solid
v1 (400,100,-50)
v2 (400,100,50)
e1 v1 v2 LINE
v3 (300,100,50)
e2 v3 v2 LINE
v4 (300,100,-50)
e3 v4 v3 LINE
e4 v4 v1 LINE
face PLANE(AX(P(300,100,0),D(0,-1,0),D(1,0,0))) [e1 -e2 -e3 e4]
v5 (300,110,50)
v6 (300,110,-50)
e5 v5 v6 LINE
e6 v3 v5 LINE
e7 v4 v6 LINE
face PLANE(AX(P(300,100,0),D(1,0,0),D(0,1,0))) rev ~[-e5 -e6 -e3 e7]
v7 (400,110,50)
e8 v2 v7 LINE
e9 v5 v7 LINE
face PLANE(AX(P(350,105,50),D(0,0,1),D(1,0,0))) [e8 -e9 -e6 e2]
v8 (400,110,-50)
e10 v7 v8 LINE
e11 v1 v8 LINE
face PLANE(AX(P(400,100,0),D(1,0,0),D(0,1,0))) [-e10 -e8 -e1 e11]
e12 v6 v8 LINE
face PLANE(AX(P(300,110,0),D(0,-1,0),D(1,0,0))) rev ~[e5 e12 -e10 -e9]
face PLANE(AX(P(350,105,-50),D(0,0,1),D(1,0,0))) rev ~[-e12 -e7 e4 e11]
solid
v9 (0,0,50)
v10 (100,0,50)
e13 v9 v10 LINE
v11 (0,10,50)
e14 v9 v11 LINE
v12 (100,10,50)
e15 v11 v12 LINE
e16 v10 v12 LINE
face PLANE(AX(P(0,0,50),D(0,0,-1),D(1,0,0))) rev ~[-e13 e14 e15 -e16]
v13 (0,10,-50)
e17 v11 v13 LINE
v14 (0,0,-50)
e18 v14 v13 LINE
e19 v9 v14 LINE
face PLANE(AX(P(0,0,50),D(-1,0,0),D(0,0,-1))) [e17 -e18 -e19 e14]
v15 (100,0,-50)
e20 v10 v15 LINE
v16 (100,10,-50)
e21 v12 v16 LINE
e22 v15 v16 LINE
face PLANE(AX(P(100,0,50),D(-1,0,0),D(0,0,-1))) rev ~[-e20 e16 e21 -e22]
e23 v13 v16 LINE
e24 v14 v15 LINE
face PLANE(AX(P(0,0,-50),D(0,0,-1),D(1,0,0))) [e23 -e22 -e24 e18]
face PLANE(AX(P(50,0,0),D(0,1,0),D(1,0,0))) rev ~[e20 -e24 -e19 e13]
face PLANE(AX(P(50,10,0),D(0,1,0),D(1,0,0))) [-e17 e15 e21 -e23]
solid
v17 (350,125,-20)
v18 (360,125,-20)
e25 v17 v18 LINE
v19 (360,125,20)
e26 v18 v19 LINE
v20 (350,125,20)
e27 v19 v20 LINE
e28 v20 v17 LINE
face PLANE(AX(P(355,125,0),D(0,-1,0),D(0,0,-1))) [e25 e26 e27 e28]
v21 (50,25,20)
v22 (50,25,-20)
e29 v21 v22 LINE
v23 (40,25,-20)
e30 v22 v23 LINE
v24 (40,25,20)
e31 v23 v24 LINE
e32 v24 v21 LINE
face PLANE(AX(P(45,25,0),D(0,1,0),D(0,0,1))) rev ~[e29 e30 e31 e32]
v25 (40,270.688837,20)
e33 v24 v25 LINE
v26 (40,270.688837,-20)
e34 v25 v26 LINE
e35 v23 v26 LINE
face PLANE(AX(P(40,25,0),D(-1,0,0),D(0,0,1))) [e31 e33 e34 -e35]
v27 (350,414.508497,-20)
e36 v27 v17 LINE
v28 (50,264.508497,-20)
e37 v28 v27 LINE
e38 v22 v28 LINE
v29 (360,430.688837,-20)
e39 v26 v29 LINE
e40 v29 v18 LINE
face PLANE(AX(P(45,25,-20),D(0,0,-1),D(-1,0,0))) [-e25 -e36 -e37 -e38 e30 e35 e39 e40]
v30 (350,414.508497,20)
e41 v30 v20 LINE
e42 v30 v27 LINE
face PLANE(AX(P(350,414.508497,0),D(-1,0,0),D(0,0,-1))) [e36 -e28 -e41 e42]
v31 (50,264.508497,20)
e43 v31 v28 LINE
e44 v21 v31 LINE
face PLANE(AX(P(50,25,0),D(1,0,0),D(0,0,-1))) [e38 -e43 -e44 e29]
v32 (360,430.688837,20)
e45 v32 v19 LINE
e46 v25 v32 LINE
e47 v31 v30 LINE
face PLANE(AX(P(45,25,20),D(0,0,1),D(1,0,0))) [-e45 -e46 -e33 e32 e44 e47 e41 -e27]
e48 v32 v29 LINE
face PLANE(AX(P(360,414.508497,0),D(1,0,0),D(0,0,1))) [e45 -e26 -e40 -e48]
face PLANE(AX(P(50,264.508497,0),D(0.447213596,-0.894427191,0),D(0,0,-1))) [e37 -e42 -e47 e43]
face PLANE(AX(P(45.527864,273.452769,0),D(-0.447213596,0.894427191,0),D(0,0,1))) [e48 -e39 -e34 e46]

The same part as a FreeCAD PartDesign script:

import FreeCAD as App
import Part
import Sketcher

doc = App.newDocument("Part")
body = doc.addObject("PartDesign::Body", "Body")

# Sketch on XZ plane
sketch1 = doc.addObject("Sketcher::SketchObject", "Sketch")
body.addObject(sketch1)
sketch1.AttachmentSupport = (doc.XZ_Plane, [""])
sketch1.MapMode = "FlatFace"
sketch1.addGeometry([
    Part.LineSegment(App.Vector(0, -50, 0), App.Vector(0, 50, 0)),
    Part.LineSegment(App.Vector(0, 50, 0), App.Vector(100, 50, 0)),
    Part.LineSegment(App.Vector(100, 50, 0), App.Vector(100, -50, 0)),
    Part.LineSegment(App.Vector(100, -50, 0), App.Vector(0, -50, 0)),
], False)
sketch1.addConstraint([
    Sketcher.Constraint("Coincident", 0, 2, 1, 1),
    Sketcher.Constraint("Coincident", 1, 2, 2, 1),
    Sketcher.Constraint("Coincident", 2, 2, 3, 1),
    Sketcher.Constraint("Coincident", 3, 2, 0, 1),
    Sketcher.Constraint("Vertical", 0),
    Sketcher.Constraint("Horizontal", 1),
    Sketcher.Constraint("Vertical", 2),
    Sketcher.Constraint("Horizontal", 3),
    Sketcher.Constraint("Symmetric", 0, 2, 3, 2, -1, 1),
    Sketcher.Constraint("Equal", 3, 0),
    Sketcher.Constraint("DistanceX", 1, 1, 1, 2, 100.0),
])
pad1 = doc.addObject("PartDesign::Pad", "Pad")
body.addObject(pad1)
pad1.Profile = sketch1
pad1.Length = 10
pad1.Reversed = True
body2 = doc.addObject("PartDesign::Body", "Body001")

# Sketch on XY plane
sketch2 = doc.addObject("Sketcher::SketchObject", "Sketch001")
body2.addObject(sketch2)
sketch2.AttachmentSupport = (doc.getObject("XY_Plane001"), [""])
sketch2.MapMode = "FlatFace"
sketch2.addGeometry([
    Part.LineSegment(App.Vector(300, 110, 0), App.Vector(300, 100, 0)),
    Part.LineSegment(App.Vector(300, 100, 0), App.Vector(400, 100, 0)),
    Part.LineSegment(App.Vector(400, 100, 0), App.Vector(400, 110, 0)),
    Part.LineSegment(App.Vector(400, 110, 0), App.Vector(300, 110, 0)),
], False)
sketch2.addConstraint([
    Sketcher.Constraint("Coincident", 0, 2, 1, 1),
    Sketcher.Constraint("Coincident", 1, 2, 2, 1),
    Sketcher.Constraint("Coincident", 2, 2, 3, 1),
    Sketcher.Constraint("Coincident", 3, 2, 0, 1),
    Sketcher.Constraint("Vertical", 0),
    Sketcher.Constraint("Horizontal", 1),
    Sketcher.Constraint("Vertical", 2),
    Sketcher.Constraint("Horizontal", 3),
    Sketcher.Constraint("DistanceX", 1, 1, 1, 2, 100.0),
    Sketcher.Constraint("DistanceY", 0, 2, 0, 1, 10.0),
    Sketcher.Constraint("DistanceX", -1, 1, 0, 2, 300.0),
    Sketcher.Constraint("DistanceY", -1, 1, 0, 2, 100.0),
])
pad2 = doc.addObject("PartDesign::Pad", "Pad001")
body2.addObject(pad2)
pad2.Profile = sketch2
pad2.Length = 100
pad2.Midplane = True
body3 = doc.addObject("PartDesign::Body", "Body002")

# Sketch on XZ plane
sketch3 = doc.addObject("Sketcher::SketchObject", "Sketch002")
body3.addObject(sketch3)
sketch3.AttachmentSupport = (doc.getObject("XZ_Plane002"), [""])
sketch3.MapMode = "FlatFace"
sketch3.AttachmentOffset = App.Placement(App.Vector(0, 0, -25), App.Rotation())
sketch3.addGeometry([
    Part.LineSegment(App.Vector(40, -20, 0), App.Vector(40, 20, 0)),
    Part.LineSegment(App.Vector(40, 20, 0), App.Vector(50, 20, 0)),
    Part.LineSegment(App.Vector(50, 20, 0), App.Vector(50, -20, 0)),
    Part.LineSegment(App.Vector(50, -20, 0), App.Vector(40, -20, 0)),
], False)
sketch3.addConstraint([
    Sketcher.Constraint("Coincident", 0, 2, 1, 1),
    Sketcher.Constraint("Coincident", 1, 2, 2, 1),
    Sketcher.Constraint("Coincident", 2, 2, 3, 1),
    Sketcher.Constraint("Coincident", 3, 2, 0, 1),
    Sketcher.Constraint("Vertical", 0),
    Sketcher.Constraint("Horizontal", 1),
    Sketcher.Constraint("Vertical", 2),
    Sketcher.Constraint("Horizontal", 3),
    Sketcher.Constraint("DistanceX", 1, 1, 1, 2, 10.0),
    Sketcher.Constraint("DistanceY", 0, 1, 0, 2, 40.0),
    Sketcher.Constraint("DistanceX", -1, 1, 0, 2, 40.0),
    Sketcher.Constraint("DistanceY", -1, 1, 0, 2, 20.0),
])

# Sketch on XY plane
sketch4 = doc.addObject("Sketcher::SketchObject", "Sketch003")
body3.addObject(sketch4)
sketch4.AttachmentSupport = (doc.getObject("XY_Plane002"), [""])
sketch4.MapMode = "FlatFace"
sketch4.addGeometry([
    Part.LineSegment(App.Vector(50, 25, 0), App.Vector(50, 265, 0)),
    Part.LineSegment(App.Vector(50, 265, 0), App.Vector(350, 415, 0)),
    Part.LineSegment(App.Vector(350, 415, 0), App.Vector(350, 125, 0)),
], False)
sketch4.addConstraint([
    Sketcher.Constraint("Coincident", 0, 2, 1, 1),
    Sketcher.Constraint("Coincident", 1, 2, 2, 1),
    Sketcher.Constraint("Vertical", 0),
    Sketcher.Constraint("Vertical", 2),
    Sketcher.Constraint("DistanceX", -1, 1, 0, 1, 50.0),
    Sketcher.Constraint("DistanceY", -1, 1, 0, 1, 25.0),
    Sketcher.Constraint("DistanceX", -1, 1, 1, 2, 350.0),
    Sketcher.Constraint("DistanceY", -1, 1, 2, 2, 125.0),
    Sketcher.Constraint("DistanceY", 0, 2, 1, 2, 150.0),
    Sketcher.Constraint("DistanceY", 0, 1, 0, 2, 239.508497),
])
doc.recompute()

additivepipe = doc.addObject("PartDesign::AdditivePipe", "AdditivePipe")
body3.addObject(additivepipe)
additivepipe.Profile = sketch3
additivepipe.Spine = (sketch4, ["Edge1", "Edge2", "Edge3"])
additivepipe.Transition = "Right corner"

doc.recompute()
